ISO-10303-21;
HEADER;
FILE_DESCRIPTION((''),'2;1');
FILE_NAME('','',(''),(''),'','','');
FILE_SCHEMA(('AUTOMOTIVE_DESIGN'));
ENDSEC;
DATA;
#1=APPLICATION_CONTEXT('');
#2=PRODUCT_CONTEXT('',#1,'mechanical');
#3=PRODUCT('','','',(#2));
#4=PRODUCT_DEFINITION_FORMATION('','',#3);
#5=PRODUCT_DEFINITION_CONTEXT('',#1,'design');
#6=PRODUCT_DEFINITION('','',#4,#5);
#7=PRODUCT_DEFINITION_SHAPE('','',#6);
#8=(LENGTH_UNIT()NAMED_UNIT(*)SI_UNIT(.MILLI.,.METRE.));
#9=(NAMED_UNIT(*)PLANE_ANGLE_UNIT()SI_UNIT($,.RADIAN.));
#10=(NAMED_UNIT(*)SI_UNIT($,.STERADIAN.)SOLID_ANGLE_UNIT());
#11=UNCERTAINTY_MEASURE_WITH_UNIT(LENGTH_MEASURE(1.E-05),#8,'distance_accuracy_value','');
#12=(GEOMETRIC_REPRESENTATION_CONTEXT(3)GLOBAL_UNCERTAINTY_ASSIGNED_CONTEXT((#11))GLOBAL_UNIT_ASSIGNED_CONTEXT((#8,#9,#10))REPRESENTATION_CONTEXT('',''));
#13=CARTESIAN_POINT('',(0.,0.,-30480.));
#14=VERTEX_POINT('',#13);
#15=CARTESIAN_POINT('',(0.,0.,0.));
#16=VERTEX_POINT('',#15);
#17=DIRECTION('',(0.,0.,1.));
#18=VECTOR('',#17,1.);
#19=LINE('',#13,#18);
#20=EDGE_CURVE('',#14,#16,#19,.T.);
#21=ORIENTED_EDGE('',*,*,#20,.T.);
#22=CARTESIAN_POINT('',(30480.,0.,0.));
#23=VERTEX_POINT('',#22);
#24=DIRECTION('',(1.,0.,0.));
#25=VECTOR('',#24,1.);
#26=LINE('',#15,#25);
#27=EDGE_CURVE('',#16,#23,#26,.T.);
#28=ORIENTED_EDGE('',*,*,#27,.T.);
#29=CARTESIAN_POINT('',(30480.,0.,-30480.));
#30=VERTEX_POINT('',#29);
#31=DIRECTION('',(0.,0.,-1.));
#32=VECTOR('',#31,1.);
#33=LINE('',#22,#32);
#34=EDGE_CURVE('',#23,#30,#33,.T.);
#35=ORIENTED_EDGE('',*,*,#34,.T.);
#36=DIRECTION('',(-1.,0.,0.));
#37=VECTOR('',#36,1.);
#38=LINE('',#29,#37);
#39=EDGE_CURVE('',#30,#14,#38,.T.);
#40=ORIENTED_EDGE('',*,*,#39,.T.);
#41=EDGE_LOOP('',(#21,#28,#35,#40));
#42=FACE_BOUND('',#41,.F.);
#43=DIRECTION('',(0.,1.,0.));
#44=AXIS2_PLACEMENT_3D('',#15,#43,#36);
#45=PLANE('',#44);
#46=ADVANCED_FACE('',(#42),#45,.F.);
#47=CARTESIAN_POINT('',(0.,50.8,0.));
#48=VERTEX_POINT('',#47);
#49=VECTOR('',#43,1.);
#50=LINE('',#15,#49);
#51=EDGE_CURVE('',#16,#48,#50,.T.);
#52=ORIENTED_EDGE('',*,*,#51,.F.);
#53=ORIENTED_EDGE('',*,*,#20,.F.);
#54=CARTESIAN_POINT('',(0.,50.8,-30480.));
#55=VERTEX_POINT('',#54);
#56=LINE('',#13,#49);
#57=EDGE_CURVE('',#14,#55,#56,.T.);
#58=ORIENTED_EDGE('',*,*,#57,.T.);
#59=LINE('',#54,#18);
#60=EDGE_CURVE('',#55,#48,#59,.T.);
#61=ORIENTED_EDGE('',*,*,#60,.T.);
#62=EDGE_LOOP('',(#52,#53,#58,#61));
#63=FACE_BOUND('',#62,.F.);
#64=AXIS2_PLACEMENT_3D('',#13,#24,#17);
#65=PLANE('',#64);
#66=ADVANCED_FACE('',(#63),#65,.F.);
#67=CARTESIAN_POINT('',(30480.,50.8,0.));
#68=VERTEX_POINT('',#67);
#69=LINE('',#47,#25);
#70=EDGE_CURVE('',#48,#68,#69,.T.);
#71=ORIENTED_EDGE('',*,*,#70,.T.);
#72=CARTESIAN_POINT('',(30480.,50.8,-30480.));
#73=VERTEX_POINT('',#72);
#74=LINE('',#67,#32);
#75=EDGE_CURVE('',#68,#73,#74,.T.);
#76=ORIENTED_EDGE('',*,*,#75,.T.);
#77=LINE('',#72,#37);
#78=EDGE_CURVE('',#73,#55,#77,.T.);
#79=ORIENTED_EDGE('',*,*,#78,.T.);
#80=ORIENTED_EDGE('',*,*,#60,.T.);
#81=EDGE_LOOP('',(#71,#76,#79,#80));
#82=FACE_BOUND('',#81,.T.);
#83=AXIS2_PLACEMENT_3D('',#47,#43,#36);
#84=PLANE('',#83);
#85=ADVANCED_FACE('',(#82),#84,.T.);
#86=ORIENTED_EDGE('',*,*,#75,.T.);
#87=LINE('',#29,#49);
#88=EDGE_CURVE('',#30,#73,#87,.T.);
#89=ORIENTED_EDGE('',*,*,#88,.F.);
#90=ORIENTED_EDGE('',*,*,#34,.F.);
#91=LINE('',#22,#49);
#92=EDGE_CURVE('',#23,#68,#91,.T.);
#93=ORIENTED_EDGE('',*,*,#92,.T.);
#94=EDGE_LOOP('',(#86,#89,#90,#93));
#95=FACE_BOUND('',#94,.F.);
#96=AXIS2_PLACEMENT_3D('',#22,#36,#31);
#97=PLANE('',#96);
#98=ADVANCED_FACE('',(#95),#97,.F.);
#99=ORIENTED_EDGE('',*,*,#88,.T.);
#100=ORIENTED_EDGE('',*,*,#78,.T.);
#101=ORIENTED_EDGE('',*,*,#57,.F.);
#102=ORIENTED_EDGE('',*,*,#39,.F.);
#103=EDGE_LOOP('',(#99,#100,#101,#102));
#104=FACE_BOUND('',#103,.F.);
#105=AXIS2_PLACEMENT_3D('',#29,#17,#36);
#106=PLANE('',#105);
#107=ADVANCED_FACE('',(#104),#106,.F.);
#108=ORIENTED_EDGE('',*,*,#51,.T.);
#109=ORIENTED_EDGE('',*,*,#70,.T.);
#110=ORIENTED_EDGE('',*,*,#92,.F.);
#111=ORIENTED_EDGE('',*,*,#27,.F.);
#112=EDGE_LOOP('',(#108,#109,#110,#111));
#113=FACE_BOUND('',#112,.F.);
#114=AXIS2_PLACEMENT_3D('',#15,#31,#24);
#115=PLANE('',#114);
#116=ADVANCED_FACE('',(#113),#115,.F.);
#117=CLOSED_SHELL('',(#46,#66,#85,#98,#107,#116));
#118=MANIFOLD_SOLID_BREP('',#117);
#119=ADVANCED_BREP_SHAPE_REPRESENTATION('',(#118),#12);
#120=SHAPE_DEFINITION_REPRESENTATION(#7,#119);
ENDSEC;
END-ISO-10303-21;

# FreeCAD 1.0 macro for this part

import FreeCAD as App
import Part
import Sketcher

V = App.Vector
Q = App.Units.Quantity

doc = App.newDocument("Part")
params = doc.addObject("Spreadsheet::Sheet", "Params")
for row, (alias, value) in enumerate([
    ("sketch1_width", "1200 in"),
    ("pad1_length", "2 in"),
], start=1):
    params.set(f"A{row}", alias)
    params.set(f"B{row}", "=" + value)
    params.setAlias(f"B{row}", alias)

body = doc.addObject("PartDesign::Body", "Body")

# Sketch on XZ plane
sketch1 = doc.addObject("Sketcher::SketchObject", "Sketch")
body.addObject(sketch1)
sketch1.AttachmentSupport = (doc.XZ_Plane, [""])
sketch1.MapMode = "FlatFace"
sketch1.addGeometry([
    Part.LineSegment(V(0, -30480, 0), V(0, 0, 0)),
    Part.LineSegment(V(0, 0, 0), V(30480, 0, 0)),
    Part.LineSegment(V(30480, 0, 0), V(30480, -30480, 0)),
    Part.LineSegment(V(30480, -30480, 0), V(0, -30480, 0)),
], False)
sketch1.addConstraint([
    Sketcher.Constraint("Coincident", 0, 2, 1, 1),
    Sketcher.Constraint("Coincident", 1, 2, 2, 1),
    Sketcher.Constraint("Coincident", 2, 2, 3, 1),
    Sketcher.Constraint("Coincident", 3, 2, 0, 1),
    Sketcher.Constraint("Vertical", 0),
    Sketcher.Constraint("Horizontal", 1),
    Sketcher.Constraint("Vertical", 2),
    Sketcher.Constraint("Horizontal", 3),
    Sketcher.Constraint("Coincident", 0, 2, -1, 1),
    Sketcher.Constraint("Equal", 3, 0),
    Sketcher.Constraint("DistanceX", 1, 1, 1, 2, Q("1200 in")),
])
sketch1.setExpression("Constraints[10]", "Params.sketch1_width")
pad1 = doc.addObject("PartDesign::Pad", "Pad")
body.addObject(pad1)
pad1.Profile = sketch1
pad1.setExpression("Length", "Params.pad1_length")
pad1.Reversed = True

doc.recompute()
